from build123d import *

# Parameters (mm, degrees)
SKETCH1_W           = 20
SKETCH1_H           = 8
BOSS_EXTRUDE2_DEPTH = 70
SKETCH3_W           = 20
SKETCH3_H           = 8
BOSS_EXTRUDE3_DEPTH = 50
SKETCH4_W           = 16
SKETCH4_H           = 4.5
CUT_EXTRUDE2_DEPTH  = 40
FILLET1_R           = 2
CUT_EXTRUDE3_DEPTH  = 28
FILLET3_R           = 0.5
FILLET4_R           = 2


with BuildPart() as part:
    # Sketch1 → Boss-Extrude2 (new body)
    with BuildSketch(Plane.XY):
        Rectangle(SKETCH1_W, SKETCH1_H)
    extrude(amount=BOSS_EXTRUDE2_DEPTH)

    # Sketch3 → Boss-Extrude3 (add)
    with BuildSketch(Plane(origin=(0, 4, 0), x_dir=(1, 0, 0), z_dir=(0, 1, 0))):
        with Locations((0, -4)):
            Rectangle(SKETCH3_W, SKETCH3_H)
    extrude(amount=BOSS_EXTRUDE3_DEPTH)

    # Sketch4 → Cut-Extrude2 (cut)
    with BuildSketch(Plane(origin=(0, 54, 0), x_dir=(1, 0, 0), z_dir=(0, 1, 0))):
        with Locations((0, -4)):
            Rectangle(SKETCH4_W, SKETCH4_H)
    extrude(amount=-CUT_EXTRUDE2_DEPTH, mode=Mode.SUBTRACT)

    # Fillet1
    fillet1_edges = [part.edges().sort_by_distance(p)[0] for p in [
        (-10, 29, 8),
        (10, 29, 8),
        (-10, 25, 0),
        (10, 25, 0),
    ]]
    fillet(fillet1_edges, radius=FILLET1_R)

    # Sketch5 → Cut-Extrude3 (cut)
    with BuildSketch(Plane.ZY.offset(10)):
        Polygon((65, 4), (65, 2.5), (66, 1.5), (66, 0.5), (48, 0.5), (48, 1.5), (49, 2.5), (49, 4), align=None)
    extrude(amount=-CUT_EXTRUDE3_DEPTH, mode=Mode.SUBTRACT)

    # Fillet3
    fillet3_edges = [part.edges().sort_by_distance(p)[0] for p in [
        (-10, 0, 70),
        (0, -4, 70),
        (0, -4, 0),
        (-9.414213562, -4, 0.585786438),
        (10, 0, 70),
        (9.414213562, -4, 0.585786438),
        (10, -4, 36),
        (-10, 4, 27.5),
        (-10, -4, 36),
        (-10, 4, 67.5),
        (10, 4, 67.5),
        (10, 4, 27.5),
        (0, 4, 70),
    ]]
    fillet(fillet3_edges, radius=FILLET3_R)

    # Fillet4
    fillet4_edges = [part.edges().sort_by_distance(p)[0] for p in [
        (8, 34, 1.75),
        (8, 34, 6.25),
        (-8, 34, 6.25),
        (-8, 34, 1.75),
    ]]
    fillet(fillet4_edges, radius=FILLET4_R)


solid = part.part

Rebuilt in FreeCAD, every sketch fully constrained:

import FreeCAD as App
import Part
import Sketcher
from FreeCAD import Vector
Q = App.Units.Quantity


def edges_at(feature, points):
    """Names of the edges that pass closest to the given points."""
    edges = feature.Shape.Edges
    near = lambda p: min(range(len(edges)), key=lambda i: edges[i].distToShape(Part.Vertex(*p))[0])
    return sorted({f"Edge{near(p) + 1}" for p in points})

doc = App.newDocument("Part")
body = doc.addObject("PartDesign::Body", "Body")

sketch1 = body.newObject("Sketcher::SketchObject", "Sketch")
sketch1.AttachmentSupport = (doc.getObject("XY_Plane"), [""])
sketch1.MapMode = "FlatFace"
sketch1.addGeometry([
    Part.LineSegment(Vector(-10, 4, 0), Vector(-10, -4, 0)),
    Part.LineSegment(Vector(-10, -4, 0), Vector(10, -4, 0)),
    Part.LineSegment(Vector(10, -4, 0), Vector(10, 4, 0)),
    Part.LineSegment(Vector(10, 4, 0), Vector(-10, 4, 0)),
], False)
sketch1.addConstraint([
    Sketcher.Constraint("Coincident", 0, 2, 1, 1),
    Sketcher.Constraint("Coincident", 1, 2, 2, 1),
    Sketcher.Constraint("Coincident", 2, 2, 3, 1),
    Sketcher.Constraint("Coincident", 3, 2, 0, 1),
    Sketcher.Constraint("Vertical", 0),
    Sketcher.Constraint("Horizontal", 1),
    Sketcher.Constraint("Vertical", 2),
    Sketcher.Constraint("Horizontal", 3),
    Sketcher.Constraint("Symmetric", 0, 2, 2, 2, -1, 1),
    Sketcher.Constraint("DistanceX", 1, 1, 1, 2, Q("20 mm")),
    Sketcher.Constraint("DistanceY", 0, 2, 0, 1, Q("8 mm")),
])
pad1 = body.newObject("PartDesign::Pad", "Pad")
pad1.Profile = sketch1
pad1.Length = 70

sketch2 = body.newObject("Sketcher::SketchObject", "Sketch001")
sketch2.AttachmentSupport = (doc.getObject("XZ_Plane"), [""])
sketch2.MapMode = "FlatFace"
sketch2.AttachmentOffset = App.Placement(Vector(0, 0, -4), App.Rotation())
sketch2.addGeometry([
    Part.LineSegment(Vector(-10, 0, 0), Vector(-10, 8, 0)),
    Part.LineSegment(Vector(-10, 8, 0), Vector(10, 8, 0)),
    Part.LineSegment(Vector(10, 8, 0), Vector(10, 0, 0)),
    Part.LineSegment(Vector(10, 0, 0), Vector(-10, 0, 0)),
], False)
sketch2.addConstraint([
    Sketcher.Constraint("Coincident", 0, 2, 1, 1),
    Sketcher.Constraint("Coincident", 1, 2, 2, 1),
    Sketcher.Constraint("Coincident", 2, 2, 3, 1),
    Sketcher.Constraint("Coincident", 3, 2, 0, 1),
    Sketcher.Constraint("Vertical", 0),
    Sketcher.Constraint("Horizontal", 1),
    Sketcher.Constraint("Vertical", 2),
    Sketcher.Constraint("Horizontal", 3),
    Sketcher.Constraint("Symmetric", 2, 2, 3, 2, -1, 1),
    Sketcher.Constraint("DistanceX", 1, 1, 1, 2, Q("20 mm")),
    Sketcher.Constraint("DistanceY", 0, 1, 0, 2, Q("8 mm")),
])
pad2 = body.newObject("PartDesign::Pad", "Pad001")
pad2.Profile = sketch2
pad2.Length = 50
pad2.Reversed = True

sketch3 = body.newObject("Sketcher::SketchObject", "Sketch002")
sketch3.AttachmentSupport = (doc.getObject("XZ_Plane"), [""])
sketch3.MapMode = "FlatFace"
sketch3.AttachmentOffset = App.Placement(Vector(0, 0, -54), App.Rotation())
sketch3.addGeometry([
    Part.LineSegment(Vector(-8, 1.8, 0), Vector(-8, 6.2, 0)),
    Part.LineSegment(Vector(-8, 6.2, 0), Vector(8, 6.2, 0)),
    Part.LineSegment(Vector(8, 6.2, 0), Vector(8, 1.8, 0)),
    Part.LineSegment(Vector(8, 1.8, 0), Vector(-8, 1.8, 0)),
], False)
sketch3.addConstraint([
    Sketcher.Constraint("Coincident", 0, 2, 1, 1),
    Sketcher.Constraint("Coincident", 1, 2, 2, 1),
    Sketcher.Constraint("Coincident", 2, 2, 3, 1),
    Sketcher.Constraint("Coincident", 3, 2, 0, 1),
    Sketcher.Constraint("Vertical", 0),
    Sketcher.Constraint("Horizontal", 1),
    Sketcher.Constraint("Vertical", 2),
    Sketcher.Constraint("Horizontal", 3),
    Sketcher.Constraint("DistanceX", 1, 1, 1, 2, Q("16 mm")),
    Sketcher.Constraint("DistanceY", 0, 1, 0, 2, Q("4.5 mm")),
    Sketcher.Constraint("DistanceX", 0, 2, -1, 1, Q("8 mm")),
    Sketcher.Constraint("DistanceY", -1, 1, 0, 2, Q("6.25 mm")),
])
pocket1 = body.newObject("PartDesign::Pocket", "Pocket")
pocket1.Profile = sketch3
pocket1.Length = 40
pocket1.Reversed = True
doc.recompute()

fillet = body.newObject("PartDesign::Fillet", "Fillet")
fillet.Base = (pocket1, edges_at(pocket1, [
    (-10, 29, 8),
    (10, 29, 8),
    (-10, 25, 0),
    (10, 25, 0),
]))
fillet.Radius = 2

sketch4 = body.newObject("Sketcher::SketchObject", "Sketch003")
sketch4.AttachmentSupport = (doc.getObject("YZ_Plane"), [""])
sketch4.MapMode = "FlatFace"
sketch4.AttachmentOffset = App.Placement(Vector(0, 0, -10), App.Rotation())
sketch4.addGeometry([
    Part.LineSegment(Vector(2.5, 65, 0), Vector(4, 65, 0)),
    Part.LineSegment(Vector(4, 65, 0), Vector(4, 49, 0)),
    Part.LineSegment(Vector(4, 49, 0), Vector(2.5, 49, 0)),
    Part.LineSegment(Vector(2.5, 49, 0), Vector(1.5, 48, 0)),
    Part.LineSegment(Vector(1.5, 48, 0), Vector(0.5, 48, 0)),
    Part.LineSegment(Vector(0.5, 48, 0), Vector(0.5, 66, 0)),
    Part.LineSegment(Vector(0.5, 66, 0), Vector(1.5, 66, 0)),
    Part.LineSegment(Vector(1.5, 66, 0), Vector(2.5, 65, 0)),
], False)
sketch4.addConstraint([
    Sketcher.Constraint("Coincident", 0, 2, 1, 1),
    Sketcher.Constraint("Coincident", 1, 2, 2, 1),
    Sketcher.Constraint("Coincident", 2, 2, 3, 1),
    Sketcher.Constraint("Coincident", 3, 2, 4, 1),
    Sketcher.Constraint("Coincident", 4, 2, 5, 1),
    Sketcher.Constraint("Coincident", 5, 2, 6, 1),
    Sketcher.Constraint("Coincident", 6, 2, 7, 1),
    Sketcher.Constraint("Coincident", 7, 2, 0, 1),
    Sketcher.Constraint("Horizontal", 0),
    Sketcher.Constraint("Vertical", 1),
    Sketcher.Constraint("Horizontal", 2),
    Sketcher.Constraint("Horizontal", 4),
    Sketcher.Constraint("Vertical", 5),
    Sketcher.Constraint("Horizontal", 6),
    Sketcher.Constraint("Perpendicular", 3, 7),
    Sketcher.Constraint("Vertical", 3, 2, 6, 2),
    Sketcher.Constraint("Vertical", 2, 2, 7, 2),
    Sketcher.Constraint("Equal", 3, 7),
    Sketcher.Constraint("DistanceX", 4, 2, 4, 1, Q("1 mm")),
    Sketcher.Constraint("DistanceY", 1, 2, 1, 1, Q("16 mm")),
    Sketcher.Constraint("DistanceY", 5, 1, 5, 2, Q("18 mm")),
    Sketcher.Constraint("DistanceX", 0, 1, 0, 2, Q("1.5 mm")),
    Sketcher.Constraint("DistanceX", -1, 1, 0, 2, Q("4 mm")),
    Sketcher.Constraint("DistanceY", -1, 1, 0, 2, Q("65 mm")),
])
pocket2 = body.newObject("PartDesign::Pocket", "Pocket001")
pocket2.Profile = sketch4
pocket2.Length = 28
pocket2.Reversed = True
doc.recompute()

fillet2 = body.newObject("PartDesign::Fillet", "Fillet001")
fillet2.Base = (pocket2, edges_at(pocket2, [
    (-10, 0, 70),
    (0, -4, 70),
    (0, -4, 0),
    (-9.414, -4, 0.586),
    (10, 0, 70),
    (9.414, -4, 0.586),
    (10, -4, 36),
    (-10, 4, 27.5),
    (-10, -4, 36),
    (-10, 4, 67.5),
    (10, 4, 67.5),
    (10, 4, 27.5),
    (0, 4, 70),
]))
fillet2.Radius = 0.5
doc.recompute()

fillet3 = body.newObject("PartDesign::Fillet", "Fillet002")
fillet3.Base = (fillet2, edges_at(fillet2, [
    (8, 34, 1.75),
    (8, 34, 6.25),
    (-8, 34, 6.25),
    (-8, 34, 1.75),
]))
fillet3.Radius = 2

doc.recompute()
